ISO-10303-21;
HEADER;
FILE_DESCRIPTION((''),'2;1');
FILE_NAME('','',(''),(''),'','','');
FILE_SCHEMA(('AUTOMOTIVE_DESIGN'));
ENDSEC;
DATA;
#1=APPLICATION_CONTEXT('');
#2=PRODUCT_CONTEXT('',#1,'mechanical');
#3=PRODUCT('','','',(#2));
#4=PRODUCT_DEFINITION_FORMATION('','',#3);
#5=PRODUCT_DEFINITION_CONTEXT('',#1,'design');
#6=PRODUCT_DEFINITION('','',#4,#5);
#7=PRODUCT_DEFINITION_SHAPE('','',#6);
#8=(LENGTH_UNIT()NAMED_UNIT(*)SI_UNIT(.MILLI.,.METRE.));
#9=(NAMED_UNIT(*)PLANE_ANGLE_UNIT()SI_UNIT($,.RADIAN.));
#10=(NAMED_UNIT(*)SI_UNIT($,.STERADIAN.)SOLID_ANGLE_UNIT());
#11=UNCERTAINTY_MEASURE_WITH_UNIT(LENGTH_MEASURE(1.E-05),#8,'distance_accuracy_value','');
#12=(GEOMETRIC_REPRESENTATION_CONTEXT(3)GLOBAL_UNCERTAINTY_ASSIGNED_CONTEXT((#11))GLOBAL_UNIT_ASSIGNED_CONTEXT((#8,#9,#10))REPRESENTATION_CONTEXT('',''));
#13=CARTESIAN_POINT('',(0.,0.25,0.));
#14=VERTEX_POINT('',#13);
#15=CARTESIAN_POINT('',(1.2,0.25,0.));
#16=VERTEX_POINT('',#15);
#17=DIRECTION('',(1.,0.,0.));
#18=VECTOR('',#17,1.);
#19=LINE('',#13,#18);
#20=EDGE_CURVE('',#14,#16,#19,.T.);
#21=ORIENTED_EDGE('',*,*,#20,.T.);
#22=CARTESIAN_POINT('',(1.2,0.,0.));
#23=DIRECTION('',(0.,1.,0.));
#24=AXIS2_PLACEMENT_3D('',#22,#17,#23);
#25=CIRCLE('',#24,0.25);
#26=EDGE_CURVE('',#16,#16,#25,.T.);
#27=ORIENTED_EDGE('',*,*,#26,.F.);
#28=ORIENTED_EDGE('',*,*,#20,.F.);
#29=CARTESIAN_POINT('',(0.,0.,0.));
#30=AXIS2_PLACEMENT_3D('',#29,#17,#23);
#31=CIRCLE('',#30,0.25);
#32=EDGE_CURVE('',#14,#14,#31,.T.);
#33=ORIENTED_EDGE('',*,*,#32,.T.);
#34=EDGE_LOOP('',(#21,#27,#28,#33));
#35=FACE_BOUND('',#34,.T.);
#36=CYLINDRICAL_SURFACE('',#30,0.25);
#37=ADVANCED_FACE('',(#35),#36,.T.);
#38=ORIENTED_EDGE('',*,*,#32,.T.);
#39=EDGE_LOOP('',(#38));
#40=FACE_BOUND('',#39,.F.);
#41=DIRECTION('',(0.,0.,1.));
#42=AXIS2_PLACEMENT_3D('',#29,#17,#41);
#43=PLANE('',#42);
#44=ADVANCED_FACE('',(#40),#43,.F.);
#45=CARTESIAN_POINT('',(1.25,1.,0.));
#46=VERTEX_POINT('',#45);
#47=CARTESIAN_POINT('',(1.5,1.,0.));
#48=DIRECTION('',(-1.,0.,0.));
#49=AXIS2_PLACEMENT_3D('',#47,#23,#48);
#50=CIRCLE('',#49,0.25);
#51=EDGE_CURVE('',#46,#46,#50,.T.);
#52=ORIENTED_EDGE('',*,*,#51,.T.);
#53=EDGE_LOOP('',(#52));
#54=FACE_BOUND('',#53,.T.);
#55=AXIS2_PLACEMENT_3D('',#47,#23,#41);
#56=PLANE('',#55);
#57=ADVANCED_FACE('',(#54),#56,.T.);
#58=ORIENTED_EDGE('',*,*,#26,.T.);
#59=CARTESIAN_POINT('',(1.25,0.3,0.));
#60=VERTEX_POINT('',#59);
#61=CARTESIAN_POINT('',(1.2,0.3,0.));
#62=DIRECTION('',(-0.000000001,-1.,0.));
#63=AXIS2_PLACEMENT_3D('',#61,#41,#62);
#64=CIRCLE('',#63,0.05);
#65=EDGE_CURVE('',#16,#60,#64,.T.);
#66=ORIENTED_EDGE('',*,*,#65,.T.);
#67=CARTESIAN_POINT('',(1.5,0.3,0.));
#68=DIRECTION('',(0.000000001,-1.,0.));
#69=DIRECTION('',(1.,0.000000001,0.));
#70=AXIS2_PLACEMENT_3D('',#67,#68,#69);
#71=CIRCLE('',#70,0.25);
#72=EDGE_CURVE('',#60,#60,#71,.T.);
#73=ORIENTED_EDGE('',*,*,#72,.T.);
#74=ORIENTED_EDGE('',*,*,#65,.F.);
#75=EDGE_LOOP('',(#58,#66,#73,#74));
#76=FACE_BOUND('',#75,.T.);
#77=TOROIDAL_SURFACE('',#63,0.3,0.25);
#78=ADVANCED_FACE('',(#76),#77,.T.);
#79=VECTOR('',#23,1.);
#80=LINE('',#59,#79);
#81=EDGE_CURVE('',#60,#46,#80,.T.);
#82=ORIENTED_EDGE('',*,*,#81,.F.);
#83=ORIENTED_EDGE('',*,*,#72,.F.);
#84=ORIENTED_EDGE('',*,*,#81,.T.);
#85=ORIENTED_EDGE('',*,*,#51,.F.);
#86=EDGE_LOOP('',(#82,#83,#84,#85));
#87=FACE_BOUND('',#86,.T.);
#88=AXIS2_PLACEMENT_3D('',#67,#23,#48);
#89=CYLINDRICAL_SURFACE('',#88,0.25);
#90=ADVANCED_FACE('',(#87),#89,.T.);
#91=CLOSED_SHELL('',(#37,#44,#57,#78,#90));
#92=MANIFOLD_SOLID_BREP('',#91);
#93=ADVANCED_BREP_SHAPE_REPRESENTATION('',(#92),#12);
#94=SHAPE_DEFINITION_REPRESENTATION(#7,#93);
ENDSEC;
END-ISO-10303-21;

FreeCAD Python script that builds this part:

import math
import FreeCAD as App
import Part
import Sketcher
Q = App.Units.Quantity

doc = App.newDocument("Part")
body = doc.addObject("PartDesign::Body", "Body")

sketch1 = body.newObject("Sketcher::SketchObject", "Sketch")
sketch1.AttachmentSupport = (doc.getObject("YZ_Plane"), [""])
sketch1.MapMode = "FlatFace"
sketch1.addGeometry(Part.Circle(App.Vector(0, 0, 0), App.Vector(0, 0, 1), 0.25), False)
sketch1.addConstraint([
    Sketcher.Constraint("Coincident", 0, 3, -1, 1),
    Sketcher.Constraint("Diameter", 0, Q("0.5 mm")),
])

sketch2 = body.newObject("Sketcher::SketchObject", "Sketch001")
sketch2.AttachmentSupport = (doc.getObject("XY_Plane"), [""])
sketch2.MapMode = "FlatFace"
sketch2.addGeometry([
    Part.LineSegment(App.Vector(0, 0, 0), App.Vector(1.2, 0, 0)),
    Part.ArcOfCircle(Part.Circle(App.Vector(1.2, 0.3, 0), App.Vector(0, 0, 1), 0.3), math.radians(-90), math.radians(0)),
    Part.LineSegment(App.Vector(1.5, 0.3, 0), App.Vector(1.5, 1, 0)),
], False)
sketch2.addConstraint([
    Sketcher.Constraint("Tangent", 0, 2, 1, 1),
    Sketcher.Constraint("Tangent", 1, 2, 2, 1),
    Sketcher.Constraint("Horizontal", 0),
    Sketcher.Constraint("Vertical", 2),
    Sketcher.Constraint("Coincident", 0, 1, -1, 1),
    Sketcher.Constraint("Radius", 1, Q("0.3 mm")),
    Sketcher.Constraint("DistanceX", 0, 1, 0, 2, Q("1.2 mm")),
    Sketcher.Constraint("DistanceY", 2, 1, 2, 2, Q("0.7 mm")),
])
doc.recompute()

additivepipe = body.newObject("PartDesign::AdditivePipe", "AdditivePipe")
additivepipe.Profile = sketch1
additivepipe.Spine = (sketch2, ["Edge1", "Edge2", "Edge3"])

doc.recompute()
